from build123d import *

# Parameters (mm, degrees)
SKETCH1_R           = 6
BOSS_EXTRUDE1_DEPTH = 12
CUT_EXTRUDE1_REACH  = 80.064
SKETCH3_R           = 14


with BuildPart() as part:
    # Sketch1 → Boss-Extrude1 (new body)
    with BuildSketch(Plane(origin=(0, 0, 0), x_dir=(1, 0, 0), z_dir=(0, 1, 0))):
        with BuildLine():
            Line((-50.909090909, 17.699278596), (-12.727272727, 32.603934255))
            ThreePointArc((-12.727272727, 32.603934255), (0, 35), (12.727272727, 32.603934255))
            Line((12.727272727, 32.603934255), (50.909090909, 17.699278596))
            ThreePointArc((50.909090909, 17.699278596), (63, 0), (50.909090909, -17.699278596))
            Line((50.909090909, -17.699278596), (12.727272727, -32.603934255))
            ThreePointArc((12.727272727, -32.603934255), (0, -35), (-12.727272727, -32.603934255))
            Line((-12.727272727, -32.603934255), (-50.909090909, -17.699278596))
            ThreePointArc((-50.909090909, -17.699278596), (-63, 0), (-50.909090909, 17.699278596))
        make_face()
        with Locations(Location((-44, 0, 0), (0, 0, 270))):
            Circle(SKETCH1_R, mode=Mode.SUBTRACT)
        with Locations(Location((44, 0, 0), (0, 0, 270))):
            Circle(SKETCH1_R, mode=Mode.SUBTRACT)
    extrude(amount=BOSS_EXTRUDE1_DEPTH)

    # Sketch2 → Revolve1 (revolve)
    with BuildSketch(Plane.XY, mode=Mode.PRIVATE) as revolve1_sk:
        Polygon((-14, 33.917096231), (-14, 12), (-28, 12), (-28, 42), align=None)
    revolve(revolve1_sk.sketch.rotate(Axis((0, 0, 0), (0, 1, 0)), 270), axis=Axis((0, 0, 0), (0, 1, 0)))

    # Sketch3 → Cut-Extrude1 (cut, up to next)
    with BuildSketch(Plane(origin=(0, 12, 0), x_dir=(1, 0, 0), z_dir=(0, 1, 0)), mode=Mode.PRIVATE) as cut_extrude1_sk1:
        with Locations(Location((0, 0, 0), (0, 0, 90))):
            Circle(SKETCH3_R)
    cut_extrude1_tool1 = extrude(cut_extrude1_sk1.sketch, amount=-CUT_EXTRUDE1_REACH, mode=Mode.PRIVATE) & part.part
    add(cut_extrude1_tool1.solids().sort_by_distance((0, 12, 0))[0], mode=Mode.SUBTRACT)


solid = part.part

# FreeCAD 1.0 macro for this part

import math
import FreeCAD as App
import Part
import Sketcher
from FreeCAD import Vector
Q = App.Units.Quantity


def add_polygon(sketch, points):
    """Adds a closed chain of lines whose ends are joined by coincident constraints."""
    first, n = sketch.GeometryCount, len(points)
    for a, b in zip(points, points[1:] + points[:1]):
        sketch.addGeometry(Part.LineSegment(App.Vector(*a, 0), App.Vector(*b, 0)), False)
    for i in range(n):
        sketch.addConstraint(Sketcher.Constraint("Coincident", first + i, 2, first + (i + 1) % n, 1))

doc = App.newDocument("Part")
body = doc.addObject("PartDesign::Body", "Body")

sketch1 = body.newObject("Sketcher::SketchObject", "Sketch")
sketch1.AttachmentSupport = (doc.getObject("XZ_Plane"), [""])
sketch1.MapMode = "FlatFace"
sketch1.addGeometry([
    Part.LineSegment(Vector(-12.727273, -32.603934, 0), Vector(-50.909091, -17.699279, 0)),
    Part.ArcOfCircle(Part.Circle(Vector(-44, 0, 0), Vector(0, 0, 1), 19), math.radians(111.323686), math.radians(248.676314)),
    Part.LineSegment(Vector(-50.909091, 17.699279, 0), Vector(-12.727273, 32.603934, 0)),
    Part.ArcOfCircle(Part.Circle(Vector(0, 0, 0), Vector(0, 0, 1), 35), math.radians(68.676314), math.radians(111.323686)),
    Part.LineSegment(Vector(12.727273, 32.603934, 0), Vector(50.909091, 17.699279, 0)),
    Part.ArcOfCircle(Part.Circle(Vector(44, 0, 0), Vector(0, 0, 1), 19), math.radians(-68.676314), math.radians(68.676314)),
    Part.LineSegment(Vector(50.909091, -17.699279, 0), Vector(12.727273, -32.603934, 0)),
    Part.ArcOfCircle(Part.Circle(Vector(0, 0, 0), Vector(0, 0, 1), 35), math.radians(-111.323686), math.radians(-68.676314)),
    Part.Circle(Vector(44, 0, 0), Vector(0, 0, 1), 6),
    Part.Circle(Vector(-44, 0, 0), Vector(0, 0, 1), 6),
], False)
sketch1.addConstraint([
    Sketcher.Constraint("Tangent", 0, 2, 1, 2),
    Sketcher.Constraint("Tangent", 1, 1, 2, 1),
    Sketcher.Constraint("Tangent", 2, 2, 3, 2),
    Sketcher.Constraint("Tangent", 3, 1, 4, 1),
    Sketcher.Constraint("Tangent", 4, 2, 5, 2),
    Sketcher.Constraint("Tangent", 5, 1, 6, 1),
    Sketcher.Constraint("Tangent", 6, 2, 7, 2),
    Sketcher.Constraint("Tangent", 7, 1, 0, 1),
    Sketcher.Constraint("Coincident", 3, 3, -1, 1),
    Sketcher.Constraint("Coincident", 7, 3, -1, 1),
    Sketcher.Constraint("Coincident", 8, 3, 5, 3),
    Sketcher.Constraint("Coincident", 9, 3, 1, 3),
    Sketcher.Constraint("Equal", 1, 5),
    Sketcher.Constraint("Equal", 3, 7),
    Sketcher.Constraint("Equal", 8, 9),
    Sketcher.Constraint("Symmetric", 1, 3, 5, 3, -1, 1),
    Sketcher.Constraint("PointOnObject", 1, 3, -1),
    Sketcher.Constraint("Diameter", 8, Q("12 mm")),
    Sketcher.Constraint("Radius", 1, Q("19 mm")),
    Sketcher.Constraint("Radius", 3, Q("35 mm")),
    Sketcher.Constraint("DistanceX", 1, 3, -1, 1, Q("44 mm")),
])
pad1 = body.newObject("PartDesign::Pad", "Pad")
pad1.Profile = sketch1
pad1.Length = 12
pad1.Reversed = True

sketch2 = body.newObject("Sketcher::SketchObject", "Sketch001")
sketch2.AttachmentSupport = (doc.getObject("XY_Plane"), [""])
sketch2.MapMode = "FlatFace"
add_polygon(sketch2, [(-14, 12), (-14, 33.917096), (-28, 42), (-28, 12)])
sketch2.addConstraint([
    Sketcher.Constraint("Vertical", 0),
    Sketcher.Constraint("Vertical", 2),
    Sketcher.Constraint("Horizontal", 3),
    Sketcher.Constraint("DistanceX", 3, 1, 3, 2, Q("14 mm")),
    Sketcher.Constraint("DistanceY", 2, 2, 2, 1, Q("30 mm")),
    Sketcher.Constraint("Angle", 1, Q("150 deg")),
    Sketcher.Constraint("DistanceX", 0, 2, -1, 1, Q("14 mm")),
    Sketcher.Constraint("DistanceY", -1, 1, 1, 2, Q("42 mm")),
])
revolution = body.newObject("PartDesign::Revolution", "Revolution")
revolution.Profile = sketch2
revolution.ReferenceAxis = (sketch2, ["V_Axis"])
revolution.Angle = 360

sketch3 = body.newObject("Sketcher::SketchObject", "Sketch002")
sketch3.AttachmentSupport = (doc.getObject("XZ_Plane"), [""])
sketch3.MapMode = "FlatFace"
sketch3.AttachmentOffset = App.Placement(Vector(0, 0, -12), App.Rotation())
sketch3.addGeometry(Part.Circle(Vector(0, 0, 0), Vector(0, 0, 1), 14), False)
sketch3.addConstraint([
    Sketcher.Constraint("Coincident", 0, 3, -1, 1),
    Sketcher.Constraint("Diameter", 0, Q("28 mm")),
])
pocket1 = body.newObject("PartDesign::Pocket", "Pocket")
pocket1.Profile = sketch3
pocket1.Type = "UpToFirst"
pocket1.Reversed = True

doc.recompute()
